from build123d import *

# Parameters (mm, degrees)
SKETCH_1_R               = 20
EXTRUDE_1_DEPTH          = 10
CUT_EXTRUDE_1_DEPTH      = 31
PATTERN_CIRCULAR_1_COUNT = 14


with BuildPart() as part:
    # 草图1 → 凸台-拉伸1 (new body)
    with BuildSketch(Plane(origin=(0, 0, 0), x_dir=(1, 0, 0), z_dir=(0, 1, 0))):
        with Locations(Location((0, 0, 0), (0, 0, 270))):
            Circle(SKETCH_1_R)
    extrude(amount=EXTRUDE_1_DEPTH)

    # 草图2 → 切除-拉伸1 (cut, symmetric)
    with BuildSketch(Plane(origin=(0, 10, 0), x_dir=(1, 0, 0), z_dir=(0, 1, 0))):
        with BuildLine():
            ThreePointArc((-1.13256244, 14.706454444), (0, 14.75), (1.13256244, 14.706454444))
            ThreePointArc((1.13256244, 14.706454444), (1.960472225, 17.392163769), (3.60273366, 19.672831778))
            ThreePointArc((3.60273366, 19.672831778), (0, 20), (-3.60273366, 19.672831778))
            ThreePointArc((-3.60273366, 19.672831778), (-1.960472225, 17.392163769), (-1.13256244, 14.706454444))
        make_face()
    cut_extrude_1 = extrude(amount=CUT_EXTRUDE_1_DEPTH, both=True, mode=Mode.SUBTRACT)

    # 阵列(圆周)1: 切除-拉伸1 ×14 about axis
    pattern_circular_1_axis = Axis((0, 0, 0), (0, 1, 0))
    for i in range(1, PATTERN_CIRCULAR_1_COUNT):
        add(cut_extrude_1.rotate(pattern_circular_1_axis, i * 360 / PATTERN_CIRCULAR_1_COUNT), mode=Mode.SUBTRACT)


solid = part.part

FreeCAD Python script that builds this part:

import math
import FreeCAD as App
import Part
import Sketcher

V = App.Vector

doc = App.newDocument("Part")
params = doc.addObject("Spreadsheet::Sheet", "Params")
for row, (alias, value) in enumerate([
    ("sketch1_diameter", "40 mm"),
    ("pad1_length", "10 mm"),
    ("sketch2_radius", "20 mm"),
    ("sketch2_radius2", "14.75 mm"),
    ("pocket1_length", "62 mm"),
], start=1):
    params.set(f"A{row}", alias)
    params.set(f"B{row}", "=" + value)
    params.setAlias(f"B{row}", alias)

body = doc.addObject("PartDesign::Body", "Body")

# Sketch on XZ plane
sketch1 = doc.addObject("Sketcher::SketchObject", "Sketch")
body.addObject(sketch1)
sketch1.AttachmentSupport = (doc.XZ_Plane, [""])
sketch1.MapMode = "FlatFace"
sketch1.addGeometry(Part.Circle(V(0, 0, 0), V(0, 0, 1), 20), False)
sketch1.addConstraint([
    Sketcher.Constraint("Coincident", 0, 3, -1, 1),
    Sketcher.Constraint("Diameter", 0, 40.0),
])
sketch1.setExpression("Constraints[1]", "Params.sketch1_diameter")
pad1 = doc.addObject("PartDesign::Pad", "Pad")
body.addObject(pad1)
pad1.Profile = sketch1
pad1.setExpression("Length", "Params.pad1_length")
pad1.Reversed = True

# Sketch on XZ plane
sketch2 = doc.addObject("Sketcher::SketchObject", "Sketch001")
body.addObject(sketch2)
sketch2.AttachmentSupport = (doc.XZ_Plane, [""])
sketch2.MapMode = "FlatFace"
sketch2.AttachmentOffset = App.Placement(V(0, 0, -10), App.Rotation())
sketch2.addGeometry([
    Part.ArcOfCircle(Part.Circle(V(0, 0, 0), V(0, 0, 1), 14.75), math.radians(-94.403728), math.radians(-85.596272)),
    Part.ArcOfCircle(Part.Circle(V(9.736005, -13.524778, 0), V(0, 0, 1), 8.684215), math.radians(-172.1794), math.radians(-134.931036)),
    Part.ArcOfCircle(Part.Circle(V(0, 0, 0), V(0, 0, 1), 20), math.radians(-100.377721), math.radians(-79.622279)),
    Part.ArcOfCircle(Part.Circle(V(-9.736005, -13.524778, 0), V(0, 0, 1), 8.684215), math.radians(-45.068964), math.radians(-7.8206)),
], False)
sketch2.addConstraint([
    Sketcher.Constraint("Coincident", 0, 2, 1, 1),
    Sketcher.Constraint("Coincident", 1, 2, 2, 2),
    Sketcher.Constraint("Coincident", 2, 1, 3, 1),
    Sketcher.Constraint("Coincident", 3, 2, 0, 1),
    Sketcher.Constraint("Coincident", 0, 3, -1, 1),
    Sketcher.Constraint("Coincident", 2, 3, -1, 1),
    Sketcher.Constraint("Equal", 1, 3),
    Sketcher.Constraint("Symmetric", 1, 3, 3, 3, -2),
    Sketcher.Constraint("Radius", 2, 20.0),
    Sketcher.Constraint("Radius", 0, 14.75),
    Sketcher.Constraint("Radius", 1, 8.684215),
    Sketcher.Constraint("DistanceY", 1, 2, -1, 1, 19.672832),
    Sketcher.Constraint("DistanceX", 3, 3, 1, 3, 19.47201),
])
sketch2.setExpression("Constraints[8]", "Params.sketch2_radius")
sketch2.setExpression("Constraints[9]", "Params.sketch2_radius2")
pocket1 = doc.addObject("PartDesign::Pocket", "Pocket")
body.addObject(pocket1)
pocket1.Profile = sketch2
pocket1.setExpression("Length", "Params.pocket1_length")
pocket1.Midplane = True
doc.recompute()

polarpattern = doc.addObject("PartDesign::PolarPattern", "PolarPattern")
body.addObject(polarpattern)
polarpattern.Originals = [pocket1]
polarpattern.Axis = (doc.Y_Axis, [""])
polarpattern.Angle = 360
polarpattern.Occurrences = 14
body.Tip = polarpattern

doc.recompute()
